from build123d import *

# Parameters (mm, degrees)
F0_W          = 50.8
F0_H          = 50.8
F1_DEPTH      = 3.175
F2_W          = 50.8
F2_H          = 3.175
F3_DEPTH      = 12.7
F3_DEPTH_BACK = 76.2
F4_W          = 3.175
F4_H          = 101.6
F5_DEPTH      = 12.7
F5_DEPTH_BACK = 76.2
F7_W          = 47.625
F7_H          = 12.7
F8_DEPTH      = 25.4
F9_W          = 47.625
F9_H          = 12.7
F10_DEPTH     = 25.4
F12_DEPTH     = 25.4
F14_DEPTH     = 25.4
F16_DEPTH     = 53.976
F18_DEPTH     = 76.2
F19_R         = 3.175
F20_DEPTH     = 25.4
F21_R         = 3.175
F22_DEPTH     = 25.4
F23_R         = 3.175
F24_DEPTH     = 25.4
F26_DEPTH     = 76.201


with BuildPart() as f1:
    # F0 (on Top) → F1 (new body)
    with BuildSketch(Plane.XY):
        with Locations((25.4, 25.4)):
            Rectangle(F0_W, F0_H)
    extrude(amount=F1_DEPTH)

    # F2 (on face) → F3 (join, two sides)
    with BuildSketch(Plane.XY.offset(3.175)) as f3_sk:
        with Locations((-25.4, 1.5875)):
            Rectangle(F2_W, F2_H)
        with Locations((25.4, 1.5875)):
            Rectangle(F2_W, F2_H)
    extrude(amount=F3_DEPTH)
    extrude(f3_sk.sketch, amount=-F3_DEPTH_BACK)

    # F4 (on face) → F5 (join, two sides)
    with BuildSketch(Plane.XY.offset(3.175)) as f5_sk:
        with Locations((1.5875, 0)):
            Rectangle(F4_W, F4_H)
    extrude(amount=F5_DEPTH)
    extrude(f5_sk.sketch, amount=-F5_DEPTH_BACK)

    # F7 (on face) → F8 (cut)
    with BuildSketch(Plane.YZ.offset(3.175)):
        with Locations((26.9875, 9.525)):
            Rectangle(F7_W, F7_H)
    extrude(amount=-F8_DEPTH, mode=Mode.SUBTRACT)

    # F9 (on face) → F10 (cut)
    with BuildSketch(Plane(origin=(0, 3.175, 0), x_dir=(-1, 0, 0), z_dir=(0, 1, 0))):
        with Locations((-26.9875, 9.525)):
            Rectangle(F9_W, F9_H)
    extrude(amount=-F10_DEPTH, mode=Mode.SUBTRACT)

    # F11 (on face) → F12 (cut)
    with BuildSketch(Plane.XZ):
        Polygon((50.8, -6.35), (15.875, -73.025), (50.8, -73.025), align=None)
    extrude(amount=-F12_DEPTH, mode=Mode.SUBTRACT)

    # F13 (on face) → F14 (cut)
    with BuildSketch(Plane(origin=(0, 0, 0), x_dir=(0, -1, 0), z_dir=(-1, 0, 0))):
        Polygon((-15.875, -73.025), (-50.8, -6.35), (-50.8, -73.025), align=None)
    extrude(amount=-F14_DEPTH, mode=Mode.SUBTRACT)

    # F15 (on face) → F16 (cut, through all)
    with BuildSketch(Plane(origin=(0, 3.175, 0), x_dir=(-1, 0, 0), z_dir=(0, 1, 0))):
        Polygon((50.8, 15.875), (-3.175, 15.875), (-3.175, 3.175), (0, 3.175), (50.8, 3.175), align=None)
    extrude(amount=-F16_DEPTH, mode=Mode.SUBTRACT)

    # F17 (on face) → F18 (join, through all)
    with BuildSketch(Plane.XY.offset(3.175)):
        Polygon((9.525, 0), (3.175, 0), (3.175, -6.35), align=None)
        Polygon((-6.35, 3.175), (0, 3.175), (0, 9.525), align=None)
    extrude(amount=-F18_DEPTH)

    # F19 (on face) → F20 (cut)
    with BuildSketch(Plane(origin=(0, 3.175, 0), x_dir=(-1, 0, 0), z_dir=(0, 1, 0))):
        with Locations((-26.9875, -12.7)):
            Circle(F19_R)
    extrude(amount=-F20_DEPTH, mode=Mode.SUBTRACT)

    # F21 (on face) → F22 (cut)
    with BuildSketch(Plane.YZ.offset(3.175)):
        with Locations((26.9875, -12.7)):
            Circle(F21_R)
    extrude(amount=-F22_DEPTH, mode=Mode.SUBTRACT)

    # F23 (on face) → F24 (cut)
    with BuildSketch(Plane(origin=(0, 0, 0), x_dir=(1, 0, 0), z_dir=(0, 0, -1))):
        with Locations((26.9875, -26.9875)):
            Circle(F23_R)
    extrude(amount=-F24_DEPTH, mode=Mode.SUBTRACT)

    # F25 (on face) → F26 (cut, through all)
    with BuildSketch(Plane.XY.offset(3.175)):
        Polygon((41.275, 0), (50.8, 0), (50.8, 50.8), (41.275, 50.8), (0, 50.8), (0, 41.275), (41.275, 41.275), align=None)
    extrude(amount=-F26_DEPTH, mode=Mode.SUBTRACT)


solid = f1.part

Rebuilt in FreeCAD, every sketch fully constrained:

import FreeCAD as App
import Part
import Sketcher
Q = App.Units.Quantity


def add_polygon(sketch, points):
    """Adds a closed chain of lines whose ends are joined by coincident constraints."""
    first, n = sketch.GeometryCount, len(points)
    for a, b in zip(points, points[1:] + points[:1]):
        sketch.addGeometry(Part.LineSegment(App.Vector(*a, 0), App.Vector(*b, 0)), False)
    for i in range(n):
        sketch.addConstraint(Sketcher.Constraint("Coincident", first + i, 2, first + (i + 1) % n, 1))

doc = App.newDocument("Part")
body = doc.addObject("PartDesign::Body", "Body")

# Sketch on XY plane
sketch1 = doc.addObject("Sketcher::SketchObject", "Sketch")
body.addObject(sketch1)
sketch1.AttachmentSupport = (doc.XY_Plane, [""])
sketch1.MapMode = "FlatFace"
add_polygon(sketch1, [(0, 51), (0, 0), (51, 0), (51, 51)])  # lines 0-3
sketch1.addConstraint(Sketcher.Constraint("Vertical", 0))
sketch1.addConstraint(Sketcher.Constraint("Horizontal", 1))
sketch1.addConstraint(Sketcher.Constraint("Vertical", 2))
sketch1.addConstraint(Sketcher.Constraint("Horizontal", 3))
sketch1.addConstraint(Sketcher.Constraint("Coincident", 0, 2, -1, 1))
sketch1.addConstraint(Sketcher.Constraint("Equal", 3, 0))
sketch1.addConstraint(Sketcher.Constraint("DistanceX", 1, 1, 1, 2, Q("2 in")))
pad1 = doc.addObject("PartDesign::Pad", "Pad")
body.addObject(pad1)
pad1.Profile = sketch1
pad1.Length = Q("0.125 in")

# Sketch on XY plane
sketch2 = doc.addObject("Sketcher::SketchObject", "Sketch001")
body.addObject(sketch2)
sketch2.AttachmentSupport = (doc.XY_Plane, [""])
sketch2.MapMode = "FlatFace"
sketch2.AttachmentOffset = App.Placement(App.Vector(0, 0, 0.125 * 25.4), App.Rotation())
add_polygon(sketch2, [(-50.8, 3.2), (-50.8, 0), (50.8, 0), (50.8, 3.2)])  # lines 0-3
sketch2.addConstraint(Sketcher.Constraint("Vertical", 0))
sketch2.addConstraint(Sketcher.Constraint("Horizontal", 1))
sketch2.addConstraint(Sketcher.Constraint("Vertical", 2))
sketch2.addConstraint(Sketcher.Constraint("Horizontal", 3))
sketch2.addConstraint(Sketcher.Constraint("Symmetric", 0, 2, 1, 2, -1, 1))
sketch2.addConstraint(Sketcher.Constraint("DistanceX", 1, 1, 1, 2, Q("4 in")))
sketch2.addConstraint(Sketcher.Constraint("DistanceY", 0, 2, 0, 1, Q("0.125 in")))
pad2 = doc.addObject("PartDesign::Pad", "Pad001")
body.addObject(pad2)
pad2.Profile = sketch2
pad2.Type = "TwoLengths"
pad2.Length = Q("0.5 in")
pad2.Length2 = Q("3 in")

# Sketch on XY plane
sketch3 = doc.addObject("Sketcher::SketchObject", "Sketch002")
body.addObject(sketch3)
sketch3.AttachmentSupport = (doc.XY_Plane, [""])
sketch3.MapMode = "FlatFace"
sketch3.AttachmentOffset = App.Placement(App.Vector(0, 0, 0.125 * 25.4), App.Rotation())
add_polygon(sketch3, [(0, 50.8), (0, -50.8), (3.2, -50.8), (3.2, 50.8)])  # lines 0-3
sketch3.addConstraint(Sketcher.Constraint("Vertical", 0))
sketch3.addConstraint(Sketcher.Constraint("Horizontal", 1))
sketch3.addConstraint(Sketcher.Constraint("Vertical", 2))
sketch3.addConstraint(Sketcher.Constraint("Horizontal", 3))
sketch3.addConstraint(Sketcher.Constraint("Symmetric", 0, 2, 3, 2, -1, 1))
sketch3.addConstraint(Sketcher.Constraint("DistanceY", 0, 2, 0, 1, Q("4 in")))
sketch3.addConstraint(Sketcher.Constraint("DistanceX", 1, 1, 1, 2, Q("0.125 in")))
pad3 = doc.addObject("PartDesign::Pad", "Pad002")
body.addObject(pad3)
pad3.Profile = sketch3
pad3.Type = "TwoLengths"
pad3.Length = Q("0.5 in")
pad3.Length2 = Q("3 in")

# Sketch on YZ plane
sketch4 = doc.addObject("Sketcher::SketchObject", "Sketch003")
body.addObject(sketch4)
sketch4.AttachmentSupport = (doc.YZ_Plane, [""])
sketch4.MapMode = "FlatFace"
sketch4.AttachmentOffset = App.Placement(App.Vector(0, 0, 0.125 * 25.4), App.Rotation())
add_polygon(sketch4, [(3, 16), (3, 3), (51, 3), (51, 16)])  # lines 0-3
sketch4.addConstraint(Sketcher.Constraint("Vertical", 0))
sketch4.addConstraint(Sketcher.Constraint("Horizontal", 1))
sketch4.addConstraint(Sketcher.Constraint("Vertical", 2))
sketch4.addConstraint(Sketcher.Constraint("Horizontal", 3))
sketch4.addConstraint(Sketcher.Constraint("DistanceY", 0, 2, 0, 1, Q("0.5 in")))
sketch4.addConstraint(Sketcher.Constraint("DistanceX", -1, 1, 1, 2, Q("2 in")))
sketch4.addConstraint(Sketcher.Constraint("DistanceX", 1, 1, 1, 2, Q("1.875 in")))
sketch4.addConstraint(Sketcher.Constraint("DistanceY", -1, 1, 0, 2, Q("0.125 in")))
pocket1 = doc.addObject("PartDesign::Pocket", "Pocket")
body.addObject(pocket1)
pocket1.Profile = sketch4
pocket1.Length = Q("1 in")

# Sketch on XZ plane
sketch5 = doc.addObject("Sketcher::SketchObject", "Sketch004")
body.addObject(sketch5)
sketch5.AttachmentSupport = (doc.XZ_Plane, [""])
sketch5.MapMode = "FlatFace"
sketch5.AttachmentOffset = App.Placement(App.Vector(0, 0, -0.125 * 25.4), App.Rotation())
add_polygon(sketch5, [(51, 16), (51, 3), (3, 3), (3, 16)])  # lines 0-3
sketch5.addConstraint(Sketcher.Constraint("Vertical", 0))
sketch5.addConstraint(Sketcher.Constraint("Horizontal", 1))
sketch5.addConstraint(Sketcher.Constraint("Vertical", 2))
sketch5.addConstraint(Sketcher.Constraint("Horizontal", 3))
sketch5.addConstraint(Sketcher.Constraint("DistanceY", 0, 2, 0, 1, Q("0.5 in")))
sketch5.addConstraint(Sketcher.Constraint("DistanceX", -1, 1, 0, 2, Q("2 in")))
sketch5.addConstraint(Sketcher.Constraint("DistanceX", 1, 2, 1, 1, Q("1.875 in")))
sketch5.addConstraint(Sketcher.Constraint("DistanceY", -1, 1, 0, 2, Q("0.125 in")))
pocket2 = doc.addObject("PartDesign::Pocket", "Pocket001")
body.addObject(pocket2)
pocket2.Profile = sketch5
pocket2.Length = Q("1 in")
pocket2.Reversed = True

# Sketch on XZ plane
sketch6 = doc.addObject("Sketcher::SketchObject", "Sketch005")
body.addObject(sketch6)
sketch6.AttachmentSupport = (doc.XZ_Plane, [""])
sketch6.MapMode = "FlatFace"
add_polygon(sketch6, [(51, -6), (16, -73), (51, -73)])  # lines 0-2
sketch6.addConstraint(Sketcher.Constraint("Horizontal", 1))
sketch6.addConstraint(Sketcher.Constraint("Vertical", 2))
sketch6.addConstraint(Sketcher.Constraint("DistanceX", -1, 1, 1, 2, Q("2 in")))
sketch6.addConstraint(Sketcher.Constraint("DistanceX", 1, 1, 1, 2, Q("1.375 in")))
sketch6.addConstraint(Sketcher.Constraint("DistanceY", 2, 1, 2, 2, Q("2.625 in")))
sketch6.addConstraint(Sketcher.Constraint("DistanceY", 2, 2, -1, 1, Q("0.25 in")))
pocket3 = doc.addObject("PartDesign::Pocket", "Pocket002")
body.addObject(pocket3)
pocket3.Profile = sketch6
pocket3.Length = Q("1 in")

# Sketch on YZ plane
sketch7 = doc.addObject("Sketcher::SketchObject", "Sketch006")
body.addObject(sketch7)
sketch7.AttachmentSupport = (doc.YZ_Plane, [""])
sketch7.MapMode = "FlatFace"
add_polygon(sketch7, [(16, -73), (51, -6), (51, -73)])  # lines 0-2
sketch7.addConstraint(Sketcher.Constraint("Vertical", 1))
sketch7.addConstraint(Sketcher.Constraint("Horizontal", 2))
sketch7.addConstraint(Sketcher.Constraint("DistanceX", -1, 1, 0, 2, Q("2 in")))
sketch7.addConstraint(Sketcher.Constraint("DistanceX", 2, 2, 2, 1, Q("1.375 in")))
sketch7.addConstraint(Sketcher.Constraint("DistanceY", 1, 2, 1, 1, Q("2.625 in")))
sketch7.addConstraint(Sketcher.Constraint("DistanceY", 0, 2, -1, 1, Q("0.25 in")))
pocket4 = doc.addObject("PartDesign::Pocket", "Pocket003")
body.addObject(pocket4)
pocket4.Profile = sketch7
pocket4.Length = Q("1 in")
pocket4.Reversed = True

# Sketch on XZ plane
sketch8 = doc.addObject("Sketcher::SketchObject", "Sketch007")
body.addObject(sketch8)
sketch8.AttachmentSupport = (doc.XZ_Plane, [""])
sketch8.MapMode = "FlatFace"
sketch8.AttachmentOffset = App.Placement(App.Vector(0, 0, -0.125 * 25.4), App.Rotation())
add_polygon(sketch8, [(-51, 16), (3, 16), (3, 3), (-51, 3)])  # lines 0-3
sketch8.addConstraint(Sketcher.Constraint("Horizontal", 0))
sketch8.addConstraint(Sketcher.Constraint("Vertical", 1))
sketch8.addConstraint(Sketcher.Constraint("Horizontal", 2))
sketch8.addConstraint(Sketcher.Constraint("Vertical", 3))
sketch8.addConstraint(Sketcher.Constraint("DistanceY", 1, 2, 1, 1, Q("0.5 in")))
sketch8.addConstraint(Sketcher.Constraint("DistanceX", 2, 2, -1, 1, Q("2 in")))
sketch8.addConstraint(Sketcher.Constraint("DistanceX", 0, 1, 0, 2, Q("2.125 in")))
sketch8.addConstraint(Sketcher.Constraint("DistanceY", -1, 1, 0, 2, Q("0.625 in")))
pocket5 = doc.addObject("PartDesign::Pocket", "Pocket004")
body.addObject(pocket5)
pocket5.Profile = sketch8
pocket5.Type = "ThroughAll"
pocket5.Reversed = True

# Sketch on XY plane
sketch9 = doc.addObject("Sketcher::SketchObject", "Sketch008")
body.addObject(sketch9)
sketch9.AttachmentSupport = (doc.XY_Plane, [""])
sketch9.MapMode = "FlatFace"
sketch9.AttachmentOffset = App.Placement(App.Vector(0, 0, 0.125 * 25.4), App.Rotation())
add_polygon(sketch9, [(10, 0), (3, 0), (3, -6)])  # lines 0-2
add_polygon(sketch9, [(-6, 3), (0, 3), (0, 10)])  # lines 3-5
sketch9.addConstraint(Sketcher.Constraint("Horizontal", 0))
sketch9.addConstraint(Sketcher.Constraint("Vertical", 1))
sketch9.addConstraint(Sketcher.Constraint("Horizontal", 3))
sketch9.addConstraint(Sketcher.Constraint("Vertical", 4))
sketch9.addConstraint(Sketcher.Constraint("PointOnObject", 0, 2, -1))
sketch9.addConstraint(Sketcher.Constraint("PointOnObject", 3, 2, -2))
sketch9.addConstraint(Sketcher.Constraint("Parallel", 2, 5))
sketch9.addConstraint(Sketcher.Constraint("Equal", 0, 3))
sketch9.addConstraint(Sketcher.Constraint("Equal", 3, 1))
sketch9.addConstraint(Sketcher.Constraint("DistanceX", 0, 2, 0, 1, Q("0.25 in")))
sketch9.addConstraint(Sketcher.Constraint("DistanceX", -1, 1, 0, 2, Q("0.125 in")))
sketch9.addConstraint(Sketcher.Constraint("DistanceY", -1, 1, 3, 2, Q("0.125 in")))
pad4 = doc.addObject("PartDesign::Pad", "Pad003")
body.addObject(pad4)
pad4.Profile = sketch9
pad4.Type = "UpToLast"
pad4.Reversed = True

# Sketch on XZ plane
sketch10 = doc.addObject("Sketcher::SketchObject", "Sketch009")
body.addObject(sketch10)
sketch10.AttachmentSupport = (doc.XZ_Plane, [""])
sketch10.MapMode = "FlatFace"
sketch10.AttachmentOffset = App.Placement(App.Vector(0, 0, -0.125 * 25.4), App.Rotation())
sketch10.addGeometry(Part.Circle(App.Vector(27, -12.7, 0), App.Vector(0, 0, 1), 3.2), False)
sketch10.addConstraint(Sketcher.Constraint("Diameter", 0, Q("0.25 in")))
sketch10.addConstraint(Sketcher.Constraint("DistanceY", 0, 3, -1, 1, Q("0.5 in")))
sketch10.addConstraint(Sketcher.Constraint("DistanceX", -1, 1, 0, 3, Q("1.0625 in")))
pocket6 = doc.addObject("PartDesign::Pocket", "Pocket005")
body.addObject(pocket6)
pocket6.Profile = sketch10
pocket6.Length = Q("1 in")
pocket6.Reversed = True

# Sketch on YZ plane
sketch11 = doc.addObject("Sketcher::SketchObject", "Sketch010")
body.addObject(sketch11)
sketch11.AttachmentSupport = (doc.YZ_Plane, [""])
sketch11.MapMode = "FlatFace"
sketch11.AttachmentOffset = App.Placement(App.Vector(0, 0, 0.125 * 25.4), App.Rotation())
sketch11.addGeometry(Part.Circle(App.Vector(27, -12.7, 0), App.Vector(0, 0, 1), 3.2), False)
sketch11.addConstraint(Sketcher.Constraint("Diameter", 0, Q("0.25 in")))
sketch11.addConstraint(Sketcher.Constraint("DistanceY", 0, 3, -1, 1, Q("0.5 in")))
sketch11.addConstraint(Sketcher.Constraint("DistanceX", -1, 1, 0, 3, Q("1.0625 in")))
pocket7 = doc.addObject("PartDesign::Pocket", "Pocket006")
body.addObject(pocket7)
pocket7.Profile = sketch11
pocket7.Length = Q("1 in")

# Sketch on XY plane
sketch12 = doc.addObject("Sketcher::SketchObject", "Sketch011")
body.addObject(sketch12)
sketch12.AttachmentSupport = (doc.XY_Plane, [""])
sketch12.MapMode = "FlatFace"
sketch12.addGeometry(Part.Circle(App.Vector(27, 27, 0), App.Vector(0, 0, 1), 3.2), False)
sketch12.addConstraint(Sketcher.Constraint("Diameter", 0, Q("0.25 in")))
sketch12.addConstraint(Sketcher.Constraint("DistanceX", -1, 1, 0, 3, Q("1.0625 in")))
sketch12.addConstraint(Sketcher.Constraint("DistanceY", -1, 1, 0, 3, Q("1.0625 in")))
pocket8 = doc.addObject("PartDesign::Pocket", "Pocket007")
body.addObject(pocket8)
pocket8.Profile = sketch12
pocket8.Length = Q("1 in")
pocket8.Reversed = True

# Sketch on XY plane
sketch13 = doc.addObject("Sketcher::SketchObject", "Sketch012")
body.addObject(sketch13)
sketch13.AttachmentSupport = (doc.XY_Plane, [""])
sketch13.MapMode = "FlatFace"
sketch13.AttachmentOffset = App.Placement(App.Vector(0, 0, 0.125 * 25.4), App.Rotation())
add_polygon(sketch13, [(41, 0), (51, 0), (51, 51), (0, 51), (0, 41), (41, 41)])  # lines 0-5
sketch13.addConstraint(Sketcher.Constraint("Horizontal", 0))
sketch13.addConstraint(Sketcher.Constraint("Vertical", 1))
sketch13.addConstraint(Sketcher.Constraint("Horizontal", 2))
sketch13.addConstraint(Sketcher.Constraint("Vertical", 3))
sketch13.addConstraint(Sketcher.Constraint("Horizontal", 4))
sketch13.addConstraint(Sketcher.Constraint("Vertical", 5))
sketch13.addConstraint(Sketcher.Constraint("PointOnObject", 0, 2, -1))
sketch13.addConstraint(Sketcher.Constraint("PointOnObject", 2, 2, -2))
sketch13.addConstraint(Sketcher.Constraint("Equal", 2, 1))
sketch13.addConstraint(Sketcher.Constraint("Equal", 0, 3))
sketch13.addConstraint(Sketcher.Constraint("DistanceX", 2, 2, 2, 1, Q("2 in")))
sketch13.addConstraint(Sketcher.Constraint("DistanceX", 0, 1, 0, 2, Q("0.375 in")))
pocket9 = doc.addObject("PartDesign::Pocket", "Pocket008")
body.addObject(pocket9)
pocket9.Profile = sketch13
pocket9.Type = "ThroughAll"

doc.recompute()
